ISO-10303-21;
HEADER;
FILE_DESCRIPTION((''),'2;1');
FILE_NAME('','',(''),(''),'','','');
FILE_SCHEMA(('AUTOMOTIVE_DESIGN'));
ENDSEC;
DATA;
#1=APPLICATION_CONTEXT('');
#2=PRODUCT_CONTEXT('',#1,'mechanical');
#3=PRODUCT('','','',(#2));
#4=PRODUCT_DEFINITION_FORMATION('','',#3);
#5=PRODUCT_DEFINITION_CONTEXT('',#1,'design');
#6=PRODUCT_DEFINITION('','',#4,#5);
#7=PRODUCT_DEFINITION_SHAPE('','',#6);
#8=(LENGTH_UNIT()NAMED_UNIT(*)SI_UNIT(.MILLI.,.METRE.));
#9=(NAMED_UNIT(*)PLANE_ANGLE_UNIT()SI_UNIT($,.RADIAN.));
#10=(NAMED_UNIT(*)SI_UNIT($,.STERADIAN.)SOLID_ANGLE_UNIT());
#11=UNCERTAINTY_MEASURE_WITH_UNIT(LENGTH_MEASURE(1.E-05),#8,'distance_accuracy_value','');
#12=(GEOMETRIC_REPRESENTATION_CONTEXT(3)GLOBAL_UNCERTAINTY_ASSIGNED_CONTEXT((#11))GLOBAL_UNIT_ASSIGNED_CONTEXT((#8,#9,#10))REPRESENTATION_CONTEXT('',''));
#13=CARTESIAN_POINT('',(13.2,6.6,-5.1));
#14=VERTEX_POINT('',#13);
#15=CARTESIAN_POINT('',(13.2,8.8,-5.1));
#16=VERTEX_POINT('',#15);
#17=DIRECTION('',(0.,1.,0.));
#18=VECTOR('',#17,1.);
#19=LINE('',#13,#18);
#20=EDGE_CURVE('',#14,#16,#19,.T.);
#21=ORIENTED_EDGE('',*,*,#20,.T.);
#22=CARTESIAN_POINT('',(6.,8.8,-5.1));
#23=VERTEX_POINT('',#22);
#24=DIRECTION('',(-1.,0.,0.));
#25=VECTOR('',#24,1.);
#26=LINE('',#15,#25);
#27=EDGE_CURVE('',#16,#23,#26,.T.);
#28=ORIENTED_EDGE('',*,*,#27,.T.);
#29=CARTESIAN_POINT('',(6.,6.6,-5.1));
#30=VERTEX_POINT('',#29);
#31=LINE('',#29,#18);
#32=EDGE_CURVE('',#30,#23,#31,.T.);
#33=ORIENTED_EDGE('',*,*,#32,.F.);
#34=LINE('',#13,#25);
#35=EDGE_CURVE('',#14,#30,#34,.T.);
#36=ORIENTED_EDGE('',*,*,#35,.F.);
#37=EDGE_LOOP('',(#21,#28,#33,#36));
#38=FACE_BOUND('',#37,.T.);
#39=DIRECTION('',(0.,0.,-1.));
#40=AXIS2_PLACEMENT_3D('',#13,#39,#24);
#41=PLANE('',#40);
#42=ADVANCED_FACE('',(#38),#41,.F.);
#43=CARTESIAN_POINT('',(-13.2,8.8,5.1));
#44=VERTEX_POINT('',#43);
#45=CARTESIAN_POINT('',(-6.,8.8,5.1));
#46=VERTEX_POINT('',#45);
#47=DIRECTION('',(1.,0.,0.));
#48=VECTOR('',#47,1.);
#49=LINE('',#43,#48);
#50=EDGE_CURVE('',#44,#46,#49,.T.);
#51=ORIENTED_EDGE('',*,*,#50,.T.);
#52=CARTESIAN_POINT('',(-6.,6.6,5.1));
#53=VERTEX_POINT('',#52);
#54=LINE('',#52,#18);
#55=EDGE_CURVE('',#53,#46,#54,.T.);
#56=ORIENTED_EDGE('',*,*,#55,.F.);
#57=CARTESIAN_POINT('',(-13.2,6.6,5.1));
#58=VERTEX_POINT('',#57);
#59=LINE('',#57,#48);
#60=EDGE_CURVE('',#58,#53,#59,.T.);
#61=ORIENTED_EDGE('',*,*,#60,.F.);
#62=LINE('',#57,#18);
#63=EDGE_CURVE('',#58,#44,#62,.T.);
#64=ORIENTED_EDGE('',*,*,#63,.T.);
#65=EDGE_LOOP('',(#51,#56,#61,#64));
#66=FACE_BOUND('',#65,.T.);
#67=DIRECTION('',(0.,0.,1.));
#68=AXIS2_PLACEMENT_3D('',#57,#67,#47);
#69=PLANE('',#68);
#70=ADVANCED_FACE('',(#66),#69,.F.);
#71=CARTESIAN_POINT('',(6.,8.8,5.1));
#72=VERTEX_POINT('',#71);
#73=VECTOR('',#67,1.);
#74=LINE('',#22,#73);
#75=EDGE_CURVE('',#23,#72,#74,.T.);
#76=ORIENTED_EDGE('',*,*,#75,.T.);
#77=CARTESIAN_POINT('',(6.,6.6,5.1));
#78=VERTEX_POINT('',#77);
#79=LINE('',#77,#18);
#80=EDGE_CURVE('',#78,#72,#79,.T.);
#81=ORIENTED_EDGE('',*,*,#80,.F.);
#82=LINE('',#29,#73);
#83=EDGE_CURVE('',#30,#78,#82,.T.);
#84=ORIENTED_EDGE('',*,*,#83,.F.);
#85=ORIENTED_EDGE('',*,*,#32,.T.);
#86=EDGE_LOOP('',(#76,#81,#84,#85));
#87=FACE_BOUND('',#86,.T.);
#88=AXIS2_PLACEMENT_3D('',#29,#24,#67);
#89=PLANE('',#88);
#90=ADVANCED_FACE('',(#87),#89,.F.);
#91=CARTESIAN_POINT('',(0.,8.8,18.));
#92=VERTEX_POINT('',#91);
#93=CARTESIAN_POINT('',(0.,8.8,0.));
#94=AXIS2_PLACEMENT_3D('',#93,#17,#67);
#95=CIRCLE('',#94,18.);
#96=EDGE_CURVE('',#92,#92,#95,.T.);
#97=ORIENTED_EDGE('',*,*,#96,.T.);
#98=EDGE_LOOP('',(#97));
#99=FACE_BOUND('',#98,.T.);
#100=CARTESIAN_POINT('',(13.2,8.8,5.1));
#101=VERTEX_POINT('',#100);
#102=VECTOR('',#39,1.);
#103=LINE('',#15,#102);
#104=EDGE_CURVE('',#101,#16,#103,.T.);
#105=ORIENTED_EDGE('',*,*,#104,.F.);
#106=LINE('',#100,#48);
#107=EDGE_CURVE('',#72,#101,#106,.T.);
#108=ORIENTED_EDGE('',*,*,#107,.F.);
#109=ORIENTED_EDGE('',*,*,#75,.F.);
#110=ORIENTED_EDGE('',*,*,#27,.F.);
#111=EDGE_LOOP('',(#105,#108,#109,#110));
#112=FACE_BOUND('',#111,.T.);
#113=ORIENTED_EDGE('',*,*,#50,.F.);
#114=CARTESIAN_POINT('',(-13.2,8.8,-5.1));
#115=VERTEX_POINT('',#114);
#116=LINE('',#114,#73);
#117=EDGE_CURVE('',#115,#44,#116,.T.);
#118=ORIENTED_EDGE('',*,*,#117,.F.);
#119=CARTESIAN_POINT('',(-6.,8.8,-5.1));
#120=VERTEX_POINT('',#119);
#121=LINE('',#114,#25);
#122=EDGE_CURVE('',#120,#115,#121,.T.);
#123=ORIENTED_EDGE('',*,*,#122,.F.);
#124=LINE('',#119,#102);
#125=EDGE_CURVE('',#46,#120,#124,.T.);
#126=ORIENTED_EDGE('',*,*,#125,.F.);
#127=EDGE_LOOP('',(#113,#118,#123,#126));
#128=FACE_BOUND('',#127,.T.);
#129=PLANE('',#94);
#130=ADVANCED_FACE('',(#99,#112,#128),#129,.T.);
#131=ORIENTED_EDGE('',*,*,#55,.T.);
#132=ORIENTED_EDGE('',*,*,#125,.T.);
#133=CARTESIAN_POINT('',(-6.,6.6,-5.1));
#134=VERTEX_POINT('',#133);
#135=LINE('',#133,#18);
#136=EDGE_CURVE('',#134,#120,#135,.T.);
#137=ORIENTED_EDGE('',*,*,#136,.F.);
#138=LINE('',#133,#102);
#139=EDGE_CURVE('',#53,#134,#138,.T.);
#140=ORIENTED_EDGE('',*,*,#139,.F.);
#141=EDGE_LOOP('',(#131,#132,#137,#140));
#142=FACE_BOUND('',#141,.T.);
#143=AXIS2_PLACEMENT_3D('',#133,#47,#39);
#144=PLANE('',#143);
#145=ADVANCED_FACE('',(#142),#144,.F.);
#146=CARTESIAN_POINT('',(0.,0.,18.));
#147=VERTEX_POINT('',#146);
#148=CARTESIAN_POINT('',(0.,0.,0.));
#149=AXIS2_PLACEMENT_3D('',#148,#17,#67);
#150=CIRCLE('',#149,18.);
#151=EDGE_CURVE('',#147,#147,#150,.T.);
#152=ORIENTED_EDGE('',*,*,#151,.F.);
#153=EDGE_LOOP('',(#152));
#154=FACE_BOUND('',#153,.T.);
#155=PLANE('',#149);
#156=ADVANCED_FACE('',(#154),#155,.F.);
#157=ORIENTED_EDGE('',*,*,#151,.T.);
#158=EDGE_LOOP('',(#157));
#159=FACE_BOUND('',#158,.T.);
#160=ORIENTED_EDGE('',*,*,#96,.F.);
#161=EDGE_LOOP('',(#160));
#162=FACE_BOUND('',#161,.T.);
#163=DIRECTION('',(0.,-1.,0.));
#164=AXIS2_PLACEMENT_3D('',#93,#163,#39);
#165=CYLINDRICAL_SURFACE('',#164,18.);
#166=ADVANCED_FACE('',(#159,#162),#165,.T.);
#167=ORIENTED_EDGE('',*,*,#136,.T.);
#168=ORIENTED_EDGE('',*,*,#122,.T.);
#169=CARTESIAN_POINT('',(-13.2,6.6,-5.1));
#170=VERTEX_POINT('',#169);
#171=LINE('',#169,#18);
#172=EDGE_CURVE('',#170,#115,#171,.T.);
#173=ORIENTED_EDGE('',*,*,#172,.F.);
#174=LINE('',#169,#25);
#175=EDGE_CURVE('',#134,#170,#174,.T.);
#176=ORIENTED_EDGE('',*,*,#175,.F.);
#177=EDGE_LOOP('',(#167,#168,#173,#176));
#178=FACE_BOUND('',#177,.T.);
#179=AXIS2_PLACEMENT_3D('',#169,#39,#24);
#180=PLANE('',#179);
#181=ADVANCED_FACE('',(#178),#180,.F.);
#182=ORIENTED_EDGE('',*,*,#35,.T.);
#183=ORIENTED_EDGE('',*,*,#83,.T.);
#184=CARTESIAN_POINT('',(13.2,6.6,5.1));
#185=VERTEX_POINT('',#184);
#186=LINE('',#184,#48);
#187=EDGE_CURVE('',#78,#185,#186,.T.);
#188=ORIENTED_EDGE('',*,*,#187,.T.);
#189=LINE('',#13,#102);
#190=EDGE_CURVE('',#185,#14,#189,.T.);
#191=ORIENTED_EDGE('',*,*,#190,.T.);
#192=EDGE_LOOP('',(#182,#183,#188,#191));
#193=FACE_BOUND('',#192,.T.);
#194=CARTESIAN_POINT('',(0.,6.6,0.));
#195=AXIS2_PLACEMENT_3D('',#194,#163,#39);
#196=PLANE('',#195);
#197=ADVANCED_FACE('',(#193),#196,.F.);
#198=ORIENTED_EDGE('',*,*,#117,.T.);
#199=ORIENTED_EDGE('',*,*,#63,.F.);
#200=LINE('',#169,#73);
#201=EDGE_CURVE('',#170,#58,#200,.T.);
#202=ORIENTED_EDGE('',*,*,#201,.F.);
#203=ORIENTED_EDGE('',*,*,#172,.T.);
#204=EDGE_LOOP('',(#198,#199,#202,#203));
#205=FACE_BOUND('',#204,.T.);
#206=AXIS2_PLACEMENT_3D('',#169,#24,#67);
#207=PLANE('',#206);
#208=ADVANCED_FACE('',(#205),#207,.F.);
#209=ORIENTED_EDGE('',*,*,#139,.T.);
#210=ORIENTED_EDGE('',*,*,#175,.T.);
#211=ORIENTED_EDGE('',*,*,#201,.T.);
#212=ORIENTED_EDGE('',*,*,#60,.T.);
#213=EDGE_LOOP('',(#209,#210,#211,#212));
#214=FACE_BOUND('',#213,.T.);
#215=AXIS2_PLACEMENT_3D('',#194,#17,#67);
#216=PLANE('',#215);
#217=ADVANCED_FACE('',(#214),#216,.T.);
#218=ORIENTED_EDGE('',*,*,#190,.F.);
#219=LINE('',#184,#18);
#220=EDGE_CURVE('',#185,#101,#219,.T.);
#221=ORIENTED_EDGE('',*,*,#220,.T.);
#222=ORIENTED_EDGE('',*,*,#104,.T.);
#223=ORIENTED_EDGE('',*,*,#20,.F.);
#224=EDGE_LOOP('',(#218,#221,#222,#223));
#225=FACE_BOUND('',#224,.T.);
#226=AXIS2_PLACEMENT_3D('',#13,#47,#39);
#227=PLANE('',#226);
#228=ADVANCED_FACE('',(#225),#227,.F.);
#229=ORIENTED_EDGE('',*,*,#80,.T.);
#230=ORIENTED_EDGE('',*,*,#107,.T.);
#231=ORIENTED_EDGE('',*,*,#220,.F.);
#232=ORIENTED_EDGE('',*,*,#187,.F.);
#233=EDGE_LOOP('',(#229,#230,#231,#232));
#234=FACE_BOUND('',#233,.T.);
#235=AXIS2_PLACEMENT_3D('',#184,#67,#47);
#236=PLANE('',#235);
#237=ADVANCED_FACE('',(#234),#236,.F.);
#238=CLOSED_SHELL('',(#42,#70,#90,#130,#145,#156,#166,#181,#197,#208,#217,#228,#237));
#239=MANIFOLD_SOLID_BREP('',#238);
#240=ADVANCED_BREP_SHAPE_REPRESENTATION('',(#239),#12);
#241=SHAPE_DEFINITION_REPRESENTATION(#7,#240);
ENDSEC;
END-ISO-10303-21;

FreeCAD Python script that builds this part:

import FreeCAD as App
import Part
import Sketcher

V = App.Vector

doc = App.newDocument("Part")
params = doc.addObject("Spreadsheet::Sheet", "Params")
for row, (alias, value) in enumerate([
    ("sketch1_diameter", "36 mm"),
    ("pad1_length", "8.8 mm"),
    ("sketch2_width", "7.2 mm"),
    ("sketch2_height", "10.2 mm"),
    ("pocket1_length", "2.2 mm"),
], start=1):
    params.set(f"A{row}", alias)
    params.set(f"B{row}", "=" + value)
    params.setAlias(f"B{row}", alias)

body = doc.addObject("PartDesign::Body", "Body")

sketch1 = doc.addObject("Sketcher::SketchObject", "Sketch")
body.addObject(sketch1)
sketch1.AttachmentSupport = (doc.XZ_Plane, [""])
sketch1.MapMode = "FlatFace"
sketch1.addGeometry(Part.Circle(V(0, 0, 0), V(0, 0, 1), 18), False)
sketch1.addConstraint(Sketcher.Constraint("Coincident", 0, 3, -1, 1))
sketch1.addConstraint(Sketcher.Constraint("Diameter", 0, 36.0))
sketch1.setExpression("Constraints[1]", "Params.sketch1_diameter")
pad1 = doc.addObject("PartDesign::Pad", "Pad")
body.addObject(pad1)
pad1.Profile = sketch1
pad1.setExpression("Length", "Params.pad1_length")
pad1.Reversed = True

sketch2 = doc.addObject("Sketcher::SketchObject", "Sketch001")
body.addObject(sketch2)
sketch2.AttachmentSupport = (doc.XZ_Plane, [""])
sketch2.MapMode = "FlatFace"
sketch2.AttachmentOffset = App.Placement(V(0, 0, -8.8), App.Rotation())
sketch2.addGeometry(Part.LineSegment(V(-13.2, -5.1, 0), V(-13.2, 5.1, 0)), False)
sketch2.addGeometry(Part.LineSegment(V(-13.2, 5.1, 0), V(-6, 5.1, 0)), False)
sketch2.addGeometry(Part.LineSegment(V(-6, 5.1, 0), V(-6, -5.1, 0)), False)
sketch2.addGeometry(Part.LineSegment(V(-6, -5.1, 0), V(-13.2, -5.1, 0)), False)
sketch2.addGeometry(Part.LineSegment(V(6, -5.1, 0), V(6, 5.1, 0)), False)
sketch2.addGeometry(Part.LineSegment(V(6, 5.1, 0), V(13.2, 5.1, 0)), False)
sketch2.addGeometry(Part.LineSegment(V(13.2, 5.1, 0), V(13.2, -5.1, 0)), False)
sketch2.addGeometry(Part.LineSegment(V(13.2, -5.1, 0), V(6, -5.1, 0)), False)
sketch2.addConstraint(Sketcher.Constraint("Coincident", 0, 2, 1, 1))
sketch2.addConstraint(Sketcher.Constraint("Coincident", 1, 2, 2, 1))
sketch2.addConstraint(Sketcher.Constraint("Coincident", 2, 2, 3, 1))
sketch2.addConstraint(Sketcher.Constraint("Coincident", 3, 2, 0, 1))
sketch2.addConstraint(Sketcher.Constraint("Coincident", 4, 2, 5, 1))
sketch2.addConstraint(Sketcher.Constraint("Coincident", 5, 2, 6, 1))
sketch2.addConstraint(Sketcher.Constraint("Coincident", 6, 2, 7, 1))
sketch2.addConstraint(Sketcher.Constraint("Coincident", 7, 2, 4, 1))
sketch2.addConstraint(Sketcher.Constraint("Vertical", 0))
sketch2.addConstraint(Sketcher.Constraint("Horizontal", 1))
sketch2.addConstraint(Sketcher.Constraint("Vertical", 2))
sketch2.addConstraint(Sketcher.Constraint("Horizontal", 3))
sketch2.addConstraint(Sketcher.Constraint("Vertical", 4))
sketch2.addConstraint(Sketcher.Constraint("Horizontal", 5))
sketch2.addConstraint(Sketcher.Constraint("Vertical", 6))
sketch2.addConstraint(Sketcher.Constraint("Horizontal", 7))
sketch2.addConstraint(Sketcher.Constraint("Symmetric", 2, 2, 4, 2, -1, 1))
sketch2.addConstraint(Sketcher.Constraint("Symmetric", 0, 2, 6, 2, -1, 1))
sketch2.addConstraint(Sketcher.Constraint("Horizontal", 1, 2, 4, 2))
sketch2.addConstraint(Sketcher.Constraint("DistanceX", 1, 1, 1, 2, 7.2))
sketch2.addConstraint(Sketcher.Constraint("DistanceY", 0, 1, 0, 2, 10.2))
sketch2.addConstraint(Sketcher.Constraint("DistanceX", 1, 2, -1, 1, 6.0))
sketch2.setExpression("Constraints[19]", "Params.sketch2_width")
sketch2.setExpression("Constraints[20]", "Params.sketch2_height")
pocket1 = doc.addObject("PartDesign::Pocket", "Pocket")
body.addObject(pocket1)
pocket1.Profile = sketch2
pocket1.setExpression("Length", "Params.pocket1_length")
pocket1.Reversed = True

doc.recompute()
